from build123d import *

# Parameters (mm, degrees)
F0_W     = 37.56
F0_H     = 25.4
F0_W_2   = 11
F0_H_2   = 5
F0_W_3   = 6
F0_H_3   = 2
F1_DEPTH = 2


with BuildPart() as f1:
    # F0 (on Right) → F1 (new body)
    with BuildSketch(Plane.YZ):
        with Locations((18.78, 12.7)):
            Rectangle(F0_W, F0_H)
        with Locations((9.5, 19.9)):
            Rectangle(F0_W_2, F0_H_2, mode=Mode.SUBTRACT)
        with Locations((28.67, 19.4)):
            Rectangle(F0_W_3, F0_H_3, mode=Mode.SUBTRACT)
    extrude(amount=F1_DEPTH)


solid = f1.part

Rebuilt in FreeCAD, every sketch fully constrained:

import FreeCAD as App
import Part
import Sketcher

V = App.Vector


def add_polygon(sketch, points):
    """Adds a closed chain of lines whose ends are joined by coincident constraints."""
    first, n = sketch.GeometryCount, len(points)
    for a, b in zip(points, points[1:] + points[:1]):
        sketch.addGeometry(Part.LineSegment(App.Vector(*a, 0), App.Vector(*b, 0)), False)
    for i in range(n):
        sketch.addConstraint(Sketcher.Constraint("Coincident", first + i, 2, first + (i + 1) % n, 1))

doc = App.newDocument("Part")
body = doc.addObject("PartDesign::Body", "Body")

# Sketch on YZ plane
sketch1 = body.newObject("Sketcher::SketchObject", "Sketch")
sketch1.AttachmentSupport = (doc.getObject("YZ_Plane"), [""])
sketch1.MapMode = "FlatFace"
add_polygon(sketch1, [(0, 25.4), (0, 0), (37.6, 0), (37.6, 25.4)])  # lines 0-3
add_polygon(sketch1, [(31.7, 18.4), (25.7, 18.4), (25.7, 20.4), (31.7, 20.4)])  # lines 4-7
add_polygon(sketch1, [(15, 17.4), (4, 17.4), (4, 22.4), (15, 22.4)])  # lines 8-11
sketch1.addConstraint(Sketcher.Constraint("Vertical", 0))
sketch1.addConstraint(Sketcher.Constraint("Horizontal", 1))
sketch1.addConstraint(Sketcher.Constraint("Vertical", 2))
sketch1.addConstraint(Sketcher.Constraint("Horizontal", 3))
sketch1.addConstraint(Sketcher.Constraint("Horizontal", 4))
sketch1.addConstraint(Sketcher.Constraint("Vertical", 5))
sketch1.addConstraint(Sketcher.Constraint("Horizontal", 6))
sketch1.addConstraint(Sketcher.Constraint("Vertical", 7))
sketch1.addConstraint(Sketcher.Constraint("Horizontal", 8))
sketch1.addConstraint(Sketcher.Constraint("Vertical", 9))
sketch1.addConstraint(Sketcher.Constraint("Horizontal", 10))
sketch1.addConstraint(Sketcher.Constraint("Vertical", 11))
sketch1.addConstraint(Sketcher.Constraint("Coincident", 0, 2, -1, 1))
sketch1.addConstraint(Sketcher.Constraint("DistanceX", 4, 2, 4, 1, 6.0))
sketch1.addConstraint(Sketcher.Constraint("DistanceX", 8, 2, 8, 1, 11.0))
sketch1.addConstraint(Sketcher.Constraint("DistanceY", 5, 1, 5, 2, 2.0))
sketch1.addConstraint(Sketcher.Constraint("DistanceY", 9, 1, 9, 2, 5.0))
sketch1.addConstraint(Sketcher.Constraint("DistanceY", 0, 2, 0, 1, 25.4))
sketch1.addConstraint(Sketcher.Constraint("DistanceX", -1, 1, 8, 2, 4.0))
sketch1.addConstraint(Sketcher.Constraint("DistanceY", 4, 2, 2, 2, 7.0))
sketch1.addConstraint(Sketcher.Constraint("DistanceY", 8, 2, 3, 2, 8.0))
sketch1.addConstraint(Sketcher.Constraint("DistanceX", 1, 1, 1, 2, 37.56))
sketch1.addConstraint(Sketcher.Constraint("DistanceX", -1, 1, 4, 2, 25.67))
pad1 = body.newObject("PartDesign::Pad", "Pad")
pad1.Profile = sketch1
pad1.Length = 2

doc.recompute()
